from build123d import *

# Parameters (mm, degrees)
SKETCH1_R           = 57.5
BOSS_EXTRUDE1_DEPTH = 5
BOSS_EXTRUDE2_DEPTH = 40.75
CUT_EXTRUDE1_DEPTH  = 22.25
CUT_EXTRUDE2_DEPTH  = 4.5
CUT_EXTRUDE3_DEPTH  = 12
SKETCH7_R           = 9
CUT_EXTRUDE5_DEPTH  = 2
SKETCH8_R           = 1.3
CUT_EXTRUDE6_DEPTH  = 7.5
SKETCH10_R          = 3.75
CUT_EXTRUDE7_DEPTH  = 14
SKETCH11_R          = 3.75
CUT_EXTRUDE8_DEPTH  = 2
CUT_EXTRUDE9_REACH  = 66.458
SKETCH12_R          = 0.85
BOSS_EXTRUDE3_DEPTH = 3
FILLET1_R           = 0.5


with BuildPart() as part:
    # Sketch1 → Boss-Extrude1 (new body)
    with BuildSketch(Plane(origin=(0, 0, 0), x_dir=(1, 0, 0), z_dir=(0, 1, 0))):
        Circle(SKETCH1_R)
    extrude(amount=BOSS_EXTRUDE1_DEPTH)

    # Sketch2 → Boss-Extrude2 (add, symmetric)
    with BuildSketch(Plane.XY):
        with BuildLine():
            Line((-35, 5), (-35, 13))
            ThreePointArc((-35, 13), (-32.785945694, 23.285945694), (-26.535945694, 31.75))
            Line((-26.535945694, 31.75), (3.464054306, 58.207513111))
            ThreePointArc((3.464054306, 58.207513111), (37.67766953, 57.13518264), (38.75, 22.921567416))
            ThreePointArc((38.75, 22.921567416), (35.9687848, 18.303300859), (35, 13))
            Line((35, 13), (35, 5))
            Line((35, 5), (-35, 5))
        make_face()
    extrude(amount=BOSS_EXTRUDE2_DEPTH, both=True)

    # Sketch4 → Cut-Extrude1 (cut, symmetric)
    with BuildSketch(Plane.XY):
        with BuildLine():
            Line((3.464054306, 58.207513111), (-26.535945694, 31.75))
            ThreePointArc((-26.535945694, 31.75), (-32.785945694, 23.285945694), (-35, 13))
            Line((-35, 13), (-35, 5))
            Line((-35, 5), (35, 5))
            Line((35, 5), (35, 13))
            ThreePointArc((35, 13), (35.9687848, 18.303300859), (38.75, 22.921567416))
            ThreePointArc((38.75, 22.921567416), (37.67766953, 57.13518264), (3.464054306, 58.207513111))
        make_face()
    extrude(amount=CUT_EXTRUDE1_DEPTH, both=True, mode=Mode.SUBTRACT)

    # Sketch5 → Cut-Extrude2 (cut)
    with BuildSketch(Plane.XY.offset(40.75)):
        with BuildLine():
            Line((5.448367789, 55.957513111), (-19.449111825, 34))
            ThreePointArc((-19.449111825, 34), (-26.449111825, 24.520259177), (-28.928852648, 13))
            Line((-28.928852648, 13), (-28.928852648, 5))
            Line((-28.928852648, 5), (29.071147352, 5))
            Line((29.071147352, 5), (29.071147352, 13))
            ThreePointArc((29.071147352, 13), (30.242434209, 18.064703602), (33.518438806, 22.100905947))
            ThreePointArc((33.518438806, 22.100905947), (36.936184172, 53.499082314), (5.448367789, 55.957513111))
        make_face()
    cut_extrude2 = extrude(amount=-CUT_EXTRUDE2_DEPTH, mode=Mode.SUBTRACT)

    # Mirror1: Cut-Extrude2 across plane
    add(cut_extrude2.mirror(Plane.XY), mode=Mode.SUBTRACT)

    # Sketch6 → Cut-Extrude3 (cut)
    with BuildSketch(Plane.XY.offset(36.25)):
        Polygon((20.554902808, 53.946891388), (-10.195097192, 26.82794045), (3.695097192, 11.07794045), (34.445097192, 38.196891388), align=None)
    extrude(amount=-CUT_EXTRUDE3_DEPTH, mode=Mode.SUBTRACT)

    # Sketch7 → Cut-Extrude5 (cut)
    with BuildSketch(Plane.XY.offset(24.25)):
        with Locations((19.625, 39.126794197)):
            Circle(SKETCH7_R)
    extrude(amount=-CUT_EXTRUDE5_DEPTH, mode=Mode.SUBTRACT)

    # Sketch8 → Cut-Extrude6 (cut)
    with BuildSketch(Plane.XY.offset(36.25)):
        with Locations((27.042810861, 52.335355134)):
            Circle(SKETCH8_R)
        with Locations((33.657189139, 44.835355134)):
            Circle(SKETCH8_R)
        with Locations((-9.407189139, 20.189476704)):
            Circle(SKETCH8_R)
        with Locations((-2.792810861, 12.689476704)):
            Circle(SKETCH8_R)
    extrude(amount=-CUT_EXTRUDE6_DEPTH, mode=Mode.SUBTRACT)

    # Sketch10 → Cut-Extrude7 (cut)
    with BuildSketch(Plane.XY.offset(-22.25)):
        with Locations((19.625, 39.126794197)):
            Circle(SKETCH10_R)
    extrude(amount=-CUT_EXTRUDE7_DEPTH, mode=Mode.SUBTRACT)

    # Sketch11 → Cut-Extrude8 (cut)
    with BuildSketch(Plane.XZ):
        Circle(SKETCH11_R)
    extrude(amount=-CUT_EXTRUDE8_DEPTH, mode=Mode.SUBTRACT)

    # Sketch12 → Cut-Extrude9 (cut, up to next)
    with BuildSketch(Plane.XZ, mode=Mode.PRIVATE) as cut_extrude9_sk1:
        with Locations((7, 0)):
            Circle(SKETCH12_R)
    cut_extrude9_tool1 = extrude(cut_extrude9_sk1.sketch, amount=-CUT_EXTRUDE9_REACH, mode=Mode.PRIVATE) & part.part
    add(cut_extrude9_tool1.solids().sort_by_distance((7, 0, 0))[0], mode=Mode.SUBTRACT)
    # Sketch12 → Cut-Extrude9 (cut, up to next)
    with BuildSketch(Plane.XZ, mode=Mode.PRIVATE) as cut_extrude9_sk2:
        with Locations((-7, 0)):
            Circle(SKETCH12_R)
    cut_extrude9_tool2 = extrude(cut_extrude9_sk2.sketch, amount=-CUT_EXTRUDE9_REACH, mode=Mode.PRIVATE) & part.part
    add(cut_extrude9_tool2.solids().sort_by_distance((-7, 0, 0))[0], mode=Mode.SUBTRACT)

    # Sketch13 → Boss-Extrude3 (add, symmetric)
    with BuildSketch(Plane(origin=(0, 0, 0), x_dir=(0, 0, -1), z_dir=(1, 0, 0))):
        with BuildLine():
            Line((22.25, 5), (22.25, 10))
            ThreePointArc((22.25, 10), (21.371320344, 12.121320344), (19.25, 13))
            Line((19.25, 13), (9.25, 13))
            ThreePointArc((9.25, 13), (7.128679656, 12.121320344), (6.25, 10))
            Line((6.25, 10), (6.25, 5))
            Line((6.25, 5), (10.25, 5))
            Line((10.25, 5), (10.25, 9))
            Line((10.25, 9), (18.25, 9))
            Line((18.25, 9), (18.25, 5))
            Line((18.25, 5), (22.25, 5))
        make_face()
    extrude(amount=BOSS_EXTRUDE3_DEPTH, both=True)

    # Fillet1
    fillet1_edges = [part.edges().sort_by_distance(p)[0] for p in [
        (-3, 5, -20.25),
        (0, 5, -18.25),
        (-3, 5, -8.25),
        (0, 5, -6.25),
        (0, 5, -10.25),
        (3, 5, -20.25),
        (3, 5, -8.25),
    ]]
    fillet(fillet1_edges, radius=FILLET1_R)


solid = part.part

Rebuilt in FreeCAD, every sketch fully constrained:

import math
import FreeCAD as App
import Part
import Sketcher
Q = App.Units.Quantity


def edges_at(feature, points):
    """Names of the edges that pass closest to the given points."""
    edges = feature.Shape.Edges
    near = lambda p: min(range(len(edges)), key=lambda i: edges[i].distToShape(Part.Vertex(*p))[0])
    return sorted({f"Edge{near(p) + 1}" for p in points})

doc = App.newDocument("Part")
body = doc.addObject("PartDesign::Body", "Body")

sketch1 = body.newObject("Sketcher::SketchObject", "Sketch")
sketch1.AttachmentSupport = (doc.getObject("XZ_Plane"), [""])
sketch1.MapMode = "FlatFace"
sketch1.addGeometry(Part.Circle(App.Vector(0, 0, 0), App.Vector(0, 0, 1), 58), False)
sketch1.addConstraint([
    Sketcher.Constraint("Coincident", 0, 3, -1, 1),
    Sketcher.Constraint("Diameter", 0, Q("115 mm")),
])
pad1 = body.newObject("PartDesign::Pad", "Pad")
pad1.Profile = sketch1
pad1.Length = 5
pad1.Reversed = True

sketch2 = body.newObject("Sketcher::SketchObject", "Sketch001")
sketch2.AttachmentSupport = (doc.getObject("XY_Plane"), [""])
sketch2.MapMode = "FlatFace"
sketch2.addGeometry([
    Part.LineSegment(App.Vector(-35, 13, 0), App.Vector(-35, 5, 0)),
    Part.LineSegment(App.Vector(-35, 5, 0), App.Vector(35, 5, 0)),
    Part.LineSegment(App.Vector(35, 5, 0), App.Vector(35, 13, 0)),
    Part.ArcOfCircle(Part.Circle(App.Vector(50, 13, 0), App.Vector(0, 0, 1), 15), math.radians(139), math.radians(180)),
    Part.ArcOfCircle(Part.Circle(App.Vector(20, 39, 0), App.Vector(0, 0, 1), 25), math.radians(-41), math.radians(131)),
    Part.LineSegment(App.Vector(3, 58, 0), App.Vector(-27, 32, 0)),
    Part.ArcOfCircle(Part.Circle(App.Vector(-10, 13, 0), App.Vector(0, 0, 1), 25), math.radians(131), math.radians(180)),
], False)
sketch2.addConstraint([
    Sketcher.Constraint("Coincident", 0, 2, 1, 1),
    Sketcher.Constraint("Coincident", 1, 2, 2, 1),
    Sketcher.Constraint("Tangent", 2, 2, 3, 2),
    Sketcher.Constraint("Tangent", 3, 1, 4, 1),
    Sketcher.Constraint("Tangent", 4, 2, 5, 1),
    Sketcher.Constraint("Tangent", 5, 2, 6, 1),
    Sketcher.Constraint("Tangent", 6, 2, 0, 1),
    Sketcher.Constraint("Vertical", 0),
    Sketcher.Constraint("Horizontal", 1),
    Sketcher.Constraint("Vertical", 2),
    Sketcher.Constraint("Equal", 4, 6),
    Sketcher.Constraint("Symmetric", 2, 2, 6, 2, -2),
    Sketcher.Constraint("Radius", 3, Q("15 mm")),
    Sketcher.Constraint("Radius", 4, Q("25 mm")),
    Sketcher.Constraint("DistanceX", 1, 1, 1, 2, Q("70 mm")),
    Sketcher.Constraint("DistanceY", 0, 2, 0, 1, Q("8 mm")),
    Sketcher.Constraint("Distance", 5, Q("40 mm")),
    Sketcher.Constraint("DistanceY", -1, 1, 3, 3, Q("13 mm")),
])
pad2 = body.newObject("PartDesign::Pad", "Pad001")
pad2.Profile = sketch2
pad2.Length = 81.5
pad2.Midplane = True

sketch3 = body.newObject("Sketcher::SketchObject", "Sketch002")
sketch3.AttachmentSupport = (doc.getObject("XY_Plane"), [""])
sketch3.MapMode = "FlatFace"
sketch3.addGeometry([
    Part.LineSegment(App.Vector(3, 58, 0), App.Vector(-27, 32, 0)),
    Part.ArcOfCircle(Part.Circle(App.Vector(-10, 13, 0), App.Vector(0, 0, 1), 25), math.radians(131), math.radians(180)),
    Part.LineSegment(App.Vector(-35, 13, 0), App.Vector(-35, 5, 0)),
    Part.LineSegment(App.Vector(-35, 5, 0), App.Vector(35, 5, 0)),
    Part.LineSegment(App.Vector(35, 5, 0), App.Vector(35, 13, 0)),
    Part.ArcOfCircle(Part.Circle(App.Vector(50, 13, 0), App.Vector(0, 0, 1), 15), math.radians(139), math.radians(180)),
    Part.ArcOfCircle(Part.Circle(App.Vector(20, 39, 0), App.Vector(0, 0, 1), 25), math.radians(-41), math.radians(131)),
], False)
sketch3.addConstraint([
    Sketcher.Constraint("Tangent", 0, 2, 1, 1),
    Sketcher.Constraint("Tangent", 1, 2, 2, 1),
    Sketcher.Constraint("Coincident", 2, 2, 3, 1),
    Sketcher.Constraint("Coincident", 3, 2, 4, 1),
    Sketcher.Constraint("Tangent", 4, 2, 5, 2),
    Sketcher.Constraint("Tangent", 5, 1, 6, 1),
    Sketcher.Constraint("Tangent", 6, 2, 0, 1),
    Sketcher.Constraint("Vertical", 2),
    Sketcher.Constraint("Horizontal", 3),
    Sketcher.Constraint("Vertical", 4),
    Sketcher.Constraint("Equal", 1, 6),
    Sketcher.Constraint("Symmetric", 1, 2, 4, 2, -2),
    Sketcher.Constraint("Radius", 1, Q("25 mm")),
    Sketcher.Constraint("Radius", 5, Q("15 mm")),
    Sketcher.Constraint("DistanceX", 3, 1, 3, 2, Q("70 mm")),
    Sketcher.Constraint("DistanceY", 2, 2, 2, 1, Q("8 mm")),
    Sketcher.Constraint("Distance", 0, Q("40 mm")),
    Sketcher.Constraint("DistanceY", -1, 1, 1, 3, Q("13 mm")),
])
pocket1 = body.newObject("PartDesign::Pocket", "Pocket")
pocket1.Profile = sketch3
pocket1.Length = 44.5
pocket1.Midplane = True

sketch4 = body.newObject("Sketcher::SketchObject", "Sketch003")
sketch4.AttachmentSupport = (doc.getObject("XY_Plane"), [""])
sketch4.MapMode = "FlatFace"
sketch4.AttachmentOffset = App.Placement(App.Vector(0, 0, 40.75), App.Rotation())
sketch4.addGeometry([
    Part.LineSegment(App.Vector(5, 56, 0), App.Vector(-19, 34, 0)),
    Part.ArcOfCircle(Part.Circle(App.Vector(-1, 13, 0), App.Vector(0, 0, 1), 28), math.radians(131), math.radians(180)),
    Part.LineSegment(App.Vector(-29, 13, 0), App.Vector(-29, 5, 0)),
    Part.LineSegment(App.Vector(-29, 5, 0), App.Vector(29, 5, 0)),
    Part.LineSegment(App.Vector(29, 5, 0), App.Vector(29, 13, 0)),
    Part.ArcOfCircle(Part.Circle(App.Vector(41, 13, 0), App.Vector(0, 0, 1), 12), math.radians(128), math.radians(180)),
    Part.ArcOfCircle(Part.Circle(App.Vector(20, 39, 0), App.Vector(0, 0, 1), 22), math.radians(-52), math.radians(131)),
], False)
sketch4.addConstraint([
    Sketcher.Constraint("Tangent", 0, 2, 1, 1),
    Sketcher.Constraint("Tangent", 1, 2, 2, 1),
    Sketcher.Constraint("Coincident", 2, 2, 3, 1),
    Sketcher.Constraint("Coincident", 3, 2, 4, 1),
    Sketcher.Constraint("Tangent", 4, 2, 5, 2),
    Sketcher.Constraint("Tangent", 5, 1, 6, 1),
    Sketcher.Constraint("Tangent", 6, 2, 0, 1),
    Sketcher.Constraint("Vertical", 2),
    Sketcher.Constraint("Horizontal", 3),
    Sketcher.Constraint("Vertical", 4),
    Sketcher.Constraint("Horizontal", 1, 3, 5, 3),
    Sketcher.Constraint("Radius", 1, Q("28 mm")),
    Sketcher.Constraint("Radius", 6, Q("22 mm")),
    Sketcher.Constraint("DistanceX", 3, 1, 3, 2, Q("58 mm")),
    Sketcher.Constraint("DistanceY", 2, 2, 2, 1, Q("8 mm")),
    Sketcher.Constraint("DistanceY", -1, 1, 1, 3, Q("13 mm")),
    Sketcher.Constraint("DistanceX", -1, 1, 6, 3, Q("20 mm")),
    Sketcher.Constraint("DistanceY", -1, 1, 0, 2, Q("34 mm")),
    Sketcher.Constraint("Radius", 5, Q("11.535661 mm")),
])
pocket2 = body.newObject("PartDesign::Pocket", "Pocket001")
pocket2.Profile = sketch4
pocket2.Length = 4.5
doc.recompute()

mirrored = body.newObject("PartDesign::Mirrored", "Mirrored")
mirrored.Originals = [pocket2]
mirrored.MirrorPlane = (doc.getObject("XY_Plane"), [""])
body.Tip = mirrored

sketch5 = body.newObject("Sketcher::SketchObject", "Sketch004")
sketch5.AttachmentSupport = (doc.getObject("XY_Plane"), [""])
sketch5.MapMode = "FlatFace"
sketch5.AttachmentOffset = App.Placement(App.Vector(0, 0, 36.25), App.Rotation())
sketch5.addGeometry([
    Part.LineSegment(App.Vector(21, 54, 0), App.Vector(-10, 27, 0)),
    Part.LineSegment(App.Vector(-10, 27, 0), App.Vector(4, 11, 0)),
    Part.LineSegment(App.Vector(4, 11, 0), App.Vector(34, 38, 0)),
    Part.LineSegment(App.Vector(34, 38, 0), App.Vector(21, 54, 0)),
], False)
sketch5.addConstraint([
    Sketcher.Constraint("Coincident", 0, 2, 1, 1),
    Sketcher.Constraint("Coincident", 1, 2, 2, 1),
    Sketcher.Constraint("Coincident", 2, 2, 3, 1),
    Sketcher.Constraint("Coincident", 3, 2, 0, 1),
    Sketcher.Constraint("Perpendicular", 0, 1),
    Sketcher.Constraint("Perpendicular", 1, 2),
    Sketcher.Constraint("Perpendicular", 2, 3),
    Sketcher.Constraint("Distance", 0, Q("41 mm")),
    Sketcher.Constraint("Distance", 1, Q("21 mm")),
    Sketcher.Constraint("DistanceY", 1, 2, 0, 2, Q("15.75 mm")),
    Sketcher.Constraint("DistanceY", -1, 1, 0, 2, Q("26.82794 mm")),
    Sketcher.Constraint("DistanceX", 0, 2, -1, 1, Q("10.195097 mm")),
])
pocket3 = body.newObject("PartDesign::Pocket", "Pocket002")
pocket3.Profile = sketch5
pocket3.Length = 12

sketch6 = body.newObject("Sketcher::SketchObject", "Sketch005")
sketch6.AttachmentSupport = (doc.getObject("XY_Plane"), [""])
sketch6.MapMode = "FlatFace"
sketch6.AttachmentOffset = App.Placement(App.Vector(0, 0, 24.25), App.Rotation())
sketch6.addGeometry(Part.Circle(App.Vector(20, 39, 0), App.Vector(0, 0, 1), 9), False)
sketch6.addConstraint([
    Sketcher.Constraint("Diameter", 0, Q("18 mm")),
    Sketcher.Constraint("DistanceX", -1, 1, 0, 3, Q("19.625 mm")),
    Sketcher.Constraint("DistanceY", -1, 1, 0, 3, Q("39.126794 mm")),
])
pocket4 = body.newObject("PartDesign::Pocket", "Pocket003")
pocket4.Profile = sketch6
pocket4.Length = 2

sketch7 = body.newObject("Sketcher::SketchObject", "Sketch006")
sketch7.AttachmentSupport = (doc.getObject("XY_Plane"), [""])
sketch7.MapMode = "FlatFace"
sketch7.AttachmentOffset = App.Placement(App.Vector(0, 0, 36.25), App.Rotation())
sketch7.addGeometry([
    Part.Circle(App.Vector(27, 52.3, 0), App.Vector(0, 0, 1), 1.3),
    Part.Circle(App.Vector(33.7, 44.8, 0), App.Vector(0, 0, 1), 1.3),
    Part.Circle(App.Vector(-9.4, 20.2, 0), App.Vector(0, 0, 1), 1.3),
    Part.Circle(App.Vector(-2.8, 12.7, 0), App.Vector(0, 0, 1), 1.3),
], False)
sketch7.addConstraint([
    Sketcher.Constraint("Equal", 0, 1),
    Sketcher.Constraint("Equal", 1, 2),
    Sketcher.Constraint("Equal", 2, 3),
    Sketcher.Constraint("Diameter", 0, Q("2.6 mm")),
    Sketcher.Constraint("DistanceY", 1, 3, 0, 3, Q("7.5 mm")),
    Sketcher.Constraint("DistanceY", 3, 3, 2, 3, Q("7.5 mm")),
    Sketcher.Constraint("DistanceX", 2, 3, 0, 3, Q("36.45 mm")),
    Sketcher.Constraint("DistanceX", 3, 3, 1, 3, Q("36.45 mm")),
    Sketcher.Constraint("DistanceX", -1, 1, 0, 3, Q("27.042811 mm")),
    Sketcher.Constraint("DistanceX", -1, 1, 1, 3, Q("33.657189 mm")),
    Sketcher.Constraint("DistanceY", 2, 3, 0, 3, Q("32.145878 mm")),
    Sketcher.Constraint("DistanceY", -1, 1, 0, 3, Q("52.335355 mm")),
])
pocket5 = body.newObject("PartDesign::Pocket", "Pocket004")
pocket5.Profile = sketch7
pocket5.Length = 7.5

sketch8 = body.newObject("Sketcher::SketchObject", "Sketch007")
sketch8.AttachmentSupport = (doc.getObject("XY_Plane"), [""])
sketch8.MapMode = "FlatFace"
sketch8.AttachmentOffset = App.Placement(App.Vector(0, 0, -22.25), App.Rotation())
sketch8.addGeometry(Part.Circle(App.Vector(19.6, 39.1, 0), App.Vector(0, 0, 1), 3.8), False)
sketch8.addConstraint([
    Sketcher.Constraint("Diameter", 0, Q("7.5 mm")),
    Sketcher.Constraint("DistanceX", -1, 1, 0, 3, Q("19.625 mm")),
    Sketcher.Constraint("DistanceY", -1, 1, 0, 3, Q("39.126794 mm")),
])
pocket6 = body.newObject("PartDesign::Pocket", "Pocket005")
pocket6.Profile = sketch8
pocket6.Length = 14

sketch9 = body.newObject("Sketcher::SketchObject", "Sketch008")
sketch9.AttachmentSupport = (doc.getObject("XZ_Plane"), [""])
sketch9.MapMode = "FlatFace"
sketch9.addGeometry(Part.Circle(App.Vector(0, 0, 0), App.Vector(0, 0, 1), 3.8), False)
sketch9.addConstraint([
    Sketcher.Constraint("Coincident", 0, 3, -1, 1),
    Sketcher.Constraint("Diameter", 0, Q("7.5 mm")),
])
pocket7 = body.newObject("PartDesign::Pocket", "Pocket006")
pocket7.Profile = sketch9
pocket7.Length = 2

sketch10 = body.newObject("Sketcher::SketchObject", "Sketch009")
sketch10.AttachmentSupport = (doc.getObject("XZ_Plane"), [""])
sketch10.MapMode = "FlatFace"
sketch10.addGeometry(Part.Circle(App.Vector(7, 0, 0), App.Vector(0, 0, 1), 0.8), False)
sketch10.addConstraint([
    Sketcher.Constraint("PointOnObject", 0, 3, -1),
    Sketcher.Constraint("Diameter", 0, Q("1.7 mm")),
    Sketcher.Constraint("DistanceX", -1, 1, 0, 3, Q("7 mm")),
])
pocket8 = body.newObject("PartDesign::Pocket", "Pocket007")
pocket8.Profile = sketch10
pocket8.Type = "UpToFirst"

sketch11 = body.newObject("Sketcher::SketchObject", "Sketch010")
sketch11.AttachmentSupport = (doc.getObject("XZ_Plane"), [""])
sketch11.MapMode = "FlatFace"
sketch11.addGeometry(Part.Circle(App.Vector(-7, 0, 0), App.Vector(0, 0, 1), 0.8), False)
sketch11.addConstraint([
    Sketcher.Constraint("PointOnObject", 0, 3, -1),
    Sketcher.Constraint("Diameter", 0, Q("1.7 mm")),
    Sketcher.Constraint("DistanceX", 0, 3, -1, 1, Q("7 mm")),
])
pocket9 = body.newObject("PartDesign::Pocket", "Pocket008")
pocket9.Profile = sketch11
pocket9.Type = "UpToFirst"

sketch12 = body.newObject("Sketcher::SketchObject", "Sketch011")
sketch12.AttachmentSupport = (doc.getObject("YZ_Plane"), [""])
sketch12.MapMode = "FlatFace"
sketch12.addGeometry([
    Part.LineSegment(App.Vector(5, -22.2, 0), App.Vector(10, -22.2, 0)),
    Part.ArcOfCircle(Part.Circle(App.Vector(10, -19.3, 0), App.Vector(0, 0, 1), 3), math.radians(-90), math.radians(0)),
    Part.LineSegment(App.Vector(13, -19.2, 0), App.Vector(13, -9.2, 0)),
    Part.ArcOfCircle(Part.Circle(App.Vector(10, -9.2, 0), App.Vector(0, 0, 1), 3), math.radians(0), math.radians(90)),
    Part.LineSegment(App.Vector(10, -6.2, 0), App.Vector(5, -6.2, 0)),
    Part.LineSegment(App.Vector(5, -6.2, 0), App.Vector(5, -10.2, 0)),
    Part.LineSegment(App.Vector(5, -10.2, 0), App.Vector(9, -10.2, 0)),
    Part.LineSegment(App.Vector(9, -10.2, 0), App.Vector(9, -18.2, 0)),
    Part.LineSegment(App.Vector(9, -18.2, 0), App.Vector(5, -18.2, 0)),
    Part.LineSegment(App.Vector(5, -18.2, 0), App.Vector(5, -22.2, 0)),
], False)
sketch12.addConstraint([
    Sketcher.Constraint("Tangent", 0, 2, 1, 1),
    Sketcher.Constraint("Tangent", 1, 2, 2, 1),
    Sketcher.Constraint("Tangent", 2, 2, 3, 1),
    Sketcher.Constraint("Tangent", 3, 2, 4, 1),
    Sketcher.Constraint("Coincident", 4, 2, 5, 1),
    Sketcher.Constraint("Coincident", 5, 2, 6, 1),
    Sketcher.Constraint("Coincident", 6, 2, 7, 1),
    Sketcher.Constraint("Coincident", 7, 2, 8, 1),
    Sketcher.Constraint("Coincident", 8, 2, 9, 1),
    Sketcher.Constraint("Coincident", 9, 2, 0, 1),
    Sketcher.Constraint("Horizontal", 0),
    Sketcher.Constraint("Vertical", 2),
    Sketcher.Constraint("Horizontal", 4),
    Sketcher.Constraint("Vertical", 5),
    Sketcher.Constraint("Horizontal", 6),
    Sketcher.Constraint("Vertical", 7),
    Sketcher.Constraint("Horizontal", 8),
    Sketcher.Constraint("Vertical", 9),
    Sketcher.Constraint("Equal", 1, 3),
    Sketcher.Constraint("Vertical", 5, 2, 8, 2),
    Sketcher.Constraint("Equal", 8, 5),
    Sketcher.Constraint("Equal", 5, 9),
    Sketcher.Constraint("Radius", 1, Q("3 mm")),
    Sketcher.Constraint("DistanceX", 0, 1, 0, 2, Q("5 mm")),
    Sketcher.Constraint("DistanceX", 6, 1, 6, 2, Q("4 mm")),
    Sketcher.Constraint("DistanceY", 2, 1, 2, 2, Q("10 mm")),
    Sketcher.Constraint("DistanceX", -1, 1, 1, 3, Q("10 mm")),
    Sketcher.Constraint("DistanceY", 1, 3, -1, 1, Q("19.25 mm")),
])
pad3 = body.newObject("PartDesign::Pad", "Pad002")
pad3.Profile = sketch12
pad3.Length = 6
pad3.Midplane = True
doc.recompute()

fillet = body.newObject("PartDesign::Fillet", "Fillet")
fillet.Base = (pad3, edges_at(pad3, [
    (-3, 5, -20.25),
    (0, 5, -18.25),
    (-3, 5, -8.25),
    (0, 5, -6.25),
    (0, 5, -10.25),
    (3, 5, -20.25),
    (3, 5, -8.25),
]))
fillet.Radius = 0.5

doc.recompute()
